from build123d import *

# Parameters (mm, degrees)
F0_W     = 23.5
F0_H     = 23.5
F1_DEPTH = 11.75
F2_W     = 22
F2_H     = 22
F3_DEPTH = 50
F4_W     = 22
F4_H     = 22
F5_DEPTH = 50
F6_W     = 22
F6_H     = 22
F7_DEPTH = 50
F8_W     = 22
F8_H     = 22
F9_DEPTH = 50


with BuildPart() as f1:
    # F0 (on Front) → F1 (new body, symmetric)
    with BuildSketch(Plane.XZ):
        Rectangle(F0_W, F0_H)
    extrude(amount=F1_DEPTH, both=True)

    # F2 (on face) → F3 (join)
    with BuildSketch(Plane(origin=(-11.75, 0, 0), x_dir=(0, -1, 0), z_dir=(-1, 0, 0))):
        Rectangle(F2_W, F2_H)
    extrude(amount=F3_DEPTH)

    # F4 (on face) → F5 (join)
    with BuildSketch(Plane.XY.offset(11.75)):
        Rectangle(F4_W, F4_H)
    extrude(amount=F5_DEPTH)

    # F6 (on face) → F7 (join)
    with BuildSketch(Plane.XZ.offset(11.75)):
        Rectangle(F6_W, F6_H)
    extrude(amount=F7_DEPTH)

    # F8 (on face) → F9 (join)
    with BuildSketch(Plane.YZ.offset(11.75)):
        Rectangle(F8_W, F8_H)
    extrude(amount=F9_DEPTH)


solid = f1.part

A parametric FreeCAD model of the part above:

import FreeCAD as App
import Part
import Sketcher


def add_polygon(sketch, points):
    """Adds a closed chain of lines whose ends are joined by coincident constraints."""
    first, n = sketch.GeometryCount, len(points)
    for a, b in zip(points, points[1:] + points[:1]):
        sketch.addGeometry(Part.LineSegment(App.Vector(*a, 0), App.Vector(*b, 0)), False)
    for i in range(n):
        sketch.addConstraint(Sketcher.Constraint("Coincident", first + i, 2, first + (i + 1) % n, 1))

doc = App.newDocument("Part")
body = doc.addObject("PartDesign::Body", "Body")

# Sketch on XZ plane
sketch1 = body.newObject("Sketcher::SketchObject", "Sketch")
sketch1.AttachmentSupport = (doc.getObject("XZ_Plane"), [""])
sketch1.MapMode = "FlatFace"
add_polygon(sketch1, [(-11.75, 11.75), (-11.75, -11.75), (11.75, -11.75), (11.75, 11.75)])  # lines 0-3
sketch1.addConstraint(Sketcher.Constraint("Vertical", 0))
sketch1.addConstraint(Sketcher.Constraint("Horizontal", 1))
sketch1.addConstraint(Sketcher.Constraint("Vertical", 2))
sketch1.addConstraint(Sketcher.Constraint("Horizontal", 3))
sketch1.addConstraint(Sketcher.Constraint("Symmetric", 0, 2, 2, 2, -1, 1))
sketch1.addConstraint(Sketcher.Constraint("Equal", 3, 0))
sketch1.addConstraint(Sketcher.Constraint("DistanceX", 1, 1, 1, 2, 23.5))
pad1 = body.newObject("PartDesign::Pad", "Pad")
pad1.Profile = sketch1
pad1.Length = 23.5
pad1.Midplane = True

# Sketch on YZ plane
sketch2 = body.newObject("Sketcher::SketchObject", "Sketch001")
sketch2.AttachmentSupport = (doc.getObject("YZ_Plane"), [""])
sketch2.MapMode = "FlatFace"
sketch2.AttachmentOffset = App.Placement(App.Vector(0, 0, -11.75), App.Rotation())
add_polygon(sketch2, [(11, 11), (11, -11), (-11, -11), (-11, 11)])  # lines 0-3
sketch2.addConstraint(Sketcher.Constraint("Vertical", 0))
sketch2.addConstraint(Sketcher.Constraint("Horizontal", 1))
sketch2.addConstraint(Sketcher.Constraint("Vertical", 2))
sketch2.addConstraint(Sketcher.Constraint("Horizontal", 3))
sketch2.addConstraint(Sketcher.Constraint("Symmetric", 0, 2, 2, 2, -1, 1))
sketch2.addConstraint(Sketcher.Constraint("Equal", 3, 0))
sketch2.addConstraint(Sketcher.Constraint("DistanceX", 1, 2, 1, 1, 22.0))
pad2 = body.newObject("PartDesign::Pad", "Pad001")
pad2.Profile = sketch2
pad2.Length = 50
pad2.Reversed = True

# Sketch on XY plane
sketch3 = body.newObject("Sketcher::SketchObject", "Sketch002")
sketch3.AttachmentSupport = (doc.getObject("XY_Plane"), [""])
sketch3.MapMode = "FlatFace"
sketch3.AttachmentOffset = App.Placement(App.Vector(0, 0, 11.75), App.Rotation())
add_polygon(sketch3, [(-11, 11), (-11, -11), (11, -11), (11, 11)])  # lines 0-3
sketch3.addConstraint(Sketcher.Constraint("Vertical", 0))
sketch3.addConstraint(Sketcher.Constraint("Horizontal", 1))
sketch3.addConstraint(Sketcher.Constraint("Vertical", 2))
sketch3.addConstraint(Sketcher.Constraint("Horizontal", 3))
sketch3.addConstraint(Sketcher.Constraint("Symmetric", 0, 2, 2, 2, -1, 1))
sketch3.addConstraint(Sketcher.Constraint("Equal", 3, 0))
sketch3.addConstraint(Sketcher.Constraint("DistanceX", 1, 1, 1, 2, 22.0))
pad3 = body.newObject("PartDesign::Pad", "Pad002")
pad3.Profile = sketch3
pad3.Length = 50

# Sketch on XZ plane
sketch4 = body.newObject("Sketcher::SketchObject", "Sketch003")
sketch4.AttachmentSupport = (doc.getObject("XZ_Plane"), [""])
sketch4.MapMode = "FlatFace"
sketch4.AttachmentOffset = App.Placement(App.Vector(0, 0, 11.75), App.Rotation())
add_polygon(sketch4, [(-11, 11), (-11, -11), (11, -11), (11, 11)])  # lines 0-3
sketch4.addConstraint(Sketcher.Constraint("Vertical", 0))
sketch4.addConstraint(Sketcher.Constraint("Horizontal", 1))
sketch4.addConstraint(Sketcher.Constraint("Vertical", 2))
sketch4.addConstraint(Sketcher.Constraint("Horizontal", 3))
sketch4.addConstraint(Sketcher.Constraint("Symmetric", 0, 2, 2, 2, -1, 1))
sketch4.addConstraint(Sketcher.Constraint("Equal", 3, 0))
sketch4.addConstraint(Sketcher.Constraint("DistanceX", 1, 1, 1, 2, 22.0))
pad4 = body.newObject("PartDesign::Pad", "Pad003")
pad4.Profile = sketch4
pad4.Length = 50

# Sketch on YZ plane
sketch5 = body.newObject("Sketcher::SketchObject", "Sketch004")
sketch5.AttachmentSupport = (doc.getObject("YZ_Plane"), [""])
sketch5.MapMode = "FlatFace"
sketch5.AttachmentOffset = App.Placement(App.Vector(0, 0, 11.75), App.Rotation())
add_polygon(sketch5, [(-11, 11), (-11, -11), (11, -11), (11, 11)])  # lines 0-3
sketch5.addConstraint(Sketcher.Constraint("Vertical", 0))
sketch5.addConstraint(Sketcher.Constraint("Horizontal", 1))
sketch5.addConstraint(Sketcher.Constraint("Vertical", 2))
sketch5.addConstraint(Sketcher.Constraint("Horizontal", 3))
sketch5.addConstraint(Sketcher.Constraint("Symmetric", 0, 2, 2, 2, -1, 1))
sketch5.addConstraint(Sketcher.Constraint("Equal", 3, 0))
sketch5.addConstraint(Sketcher.Constraint("DistanceX", 1, 1, 1, 2, 22.0))
pad5 = body.newObject("PartDesign::Pad", "Pad004")
pad5.Profile = sketch5
pad5.Length = 50

doc.recompute()
